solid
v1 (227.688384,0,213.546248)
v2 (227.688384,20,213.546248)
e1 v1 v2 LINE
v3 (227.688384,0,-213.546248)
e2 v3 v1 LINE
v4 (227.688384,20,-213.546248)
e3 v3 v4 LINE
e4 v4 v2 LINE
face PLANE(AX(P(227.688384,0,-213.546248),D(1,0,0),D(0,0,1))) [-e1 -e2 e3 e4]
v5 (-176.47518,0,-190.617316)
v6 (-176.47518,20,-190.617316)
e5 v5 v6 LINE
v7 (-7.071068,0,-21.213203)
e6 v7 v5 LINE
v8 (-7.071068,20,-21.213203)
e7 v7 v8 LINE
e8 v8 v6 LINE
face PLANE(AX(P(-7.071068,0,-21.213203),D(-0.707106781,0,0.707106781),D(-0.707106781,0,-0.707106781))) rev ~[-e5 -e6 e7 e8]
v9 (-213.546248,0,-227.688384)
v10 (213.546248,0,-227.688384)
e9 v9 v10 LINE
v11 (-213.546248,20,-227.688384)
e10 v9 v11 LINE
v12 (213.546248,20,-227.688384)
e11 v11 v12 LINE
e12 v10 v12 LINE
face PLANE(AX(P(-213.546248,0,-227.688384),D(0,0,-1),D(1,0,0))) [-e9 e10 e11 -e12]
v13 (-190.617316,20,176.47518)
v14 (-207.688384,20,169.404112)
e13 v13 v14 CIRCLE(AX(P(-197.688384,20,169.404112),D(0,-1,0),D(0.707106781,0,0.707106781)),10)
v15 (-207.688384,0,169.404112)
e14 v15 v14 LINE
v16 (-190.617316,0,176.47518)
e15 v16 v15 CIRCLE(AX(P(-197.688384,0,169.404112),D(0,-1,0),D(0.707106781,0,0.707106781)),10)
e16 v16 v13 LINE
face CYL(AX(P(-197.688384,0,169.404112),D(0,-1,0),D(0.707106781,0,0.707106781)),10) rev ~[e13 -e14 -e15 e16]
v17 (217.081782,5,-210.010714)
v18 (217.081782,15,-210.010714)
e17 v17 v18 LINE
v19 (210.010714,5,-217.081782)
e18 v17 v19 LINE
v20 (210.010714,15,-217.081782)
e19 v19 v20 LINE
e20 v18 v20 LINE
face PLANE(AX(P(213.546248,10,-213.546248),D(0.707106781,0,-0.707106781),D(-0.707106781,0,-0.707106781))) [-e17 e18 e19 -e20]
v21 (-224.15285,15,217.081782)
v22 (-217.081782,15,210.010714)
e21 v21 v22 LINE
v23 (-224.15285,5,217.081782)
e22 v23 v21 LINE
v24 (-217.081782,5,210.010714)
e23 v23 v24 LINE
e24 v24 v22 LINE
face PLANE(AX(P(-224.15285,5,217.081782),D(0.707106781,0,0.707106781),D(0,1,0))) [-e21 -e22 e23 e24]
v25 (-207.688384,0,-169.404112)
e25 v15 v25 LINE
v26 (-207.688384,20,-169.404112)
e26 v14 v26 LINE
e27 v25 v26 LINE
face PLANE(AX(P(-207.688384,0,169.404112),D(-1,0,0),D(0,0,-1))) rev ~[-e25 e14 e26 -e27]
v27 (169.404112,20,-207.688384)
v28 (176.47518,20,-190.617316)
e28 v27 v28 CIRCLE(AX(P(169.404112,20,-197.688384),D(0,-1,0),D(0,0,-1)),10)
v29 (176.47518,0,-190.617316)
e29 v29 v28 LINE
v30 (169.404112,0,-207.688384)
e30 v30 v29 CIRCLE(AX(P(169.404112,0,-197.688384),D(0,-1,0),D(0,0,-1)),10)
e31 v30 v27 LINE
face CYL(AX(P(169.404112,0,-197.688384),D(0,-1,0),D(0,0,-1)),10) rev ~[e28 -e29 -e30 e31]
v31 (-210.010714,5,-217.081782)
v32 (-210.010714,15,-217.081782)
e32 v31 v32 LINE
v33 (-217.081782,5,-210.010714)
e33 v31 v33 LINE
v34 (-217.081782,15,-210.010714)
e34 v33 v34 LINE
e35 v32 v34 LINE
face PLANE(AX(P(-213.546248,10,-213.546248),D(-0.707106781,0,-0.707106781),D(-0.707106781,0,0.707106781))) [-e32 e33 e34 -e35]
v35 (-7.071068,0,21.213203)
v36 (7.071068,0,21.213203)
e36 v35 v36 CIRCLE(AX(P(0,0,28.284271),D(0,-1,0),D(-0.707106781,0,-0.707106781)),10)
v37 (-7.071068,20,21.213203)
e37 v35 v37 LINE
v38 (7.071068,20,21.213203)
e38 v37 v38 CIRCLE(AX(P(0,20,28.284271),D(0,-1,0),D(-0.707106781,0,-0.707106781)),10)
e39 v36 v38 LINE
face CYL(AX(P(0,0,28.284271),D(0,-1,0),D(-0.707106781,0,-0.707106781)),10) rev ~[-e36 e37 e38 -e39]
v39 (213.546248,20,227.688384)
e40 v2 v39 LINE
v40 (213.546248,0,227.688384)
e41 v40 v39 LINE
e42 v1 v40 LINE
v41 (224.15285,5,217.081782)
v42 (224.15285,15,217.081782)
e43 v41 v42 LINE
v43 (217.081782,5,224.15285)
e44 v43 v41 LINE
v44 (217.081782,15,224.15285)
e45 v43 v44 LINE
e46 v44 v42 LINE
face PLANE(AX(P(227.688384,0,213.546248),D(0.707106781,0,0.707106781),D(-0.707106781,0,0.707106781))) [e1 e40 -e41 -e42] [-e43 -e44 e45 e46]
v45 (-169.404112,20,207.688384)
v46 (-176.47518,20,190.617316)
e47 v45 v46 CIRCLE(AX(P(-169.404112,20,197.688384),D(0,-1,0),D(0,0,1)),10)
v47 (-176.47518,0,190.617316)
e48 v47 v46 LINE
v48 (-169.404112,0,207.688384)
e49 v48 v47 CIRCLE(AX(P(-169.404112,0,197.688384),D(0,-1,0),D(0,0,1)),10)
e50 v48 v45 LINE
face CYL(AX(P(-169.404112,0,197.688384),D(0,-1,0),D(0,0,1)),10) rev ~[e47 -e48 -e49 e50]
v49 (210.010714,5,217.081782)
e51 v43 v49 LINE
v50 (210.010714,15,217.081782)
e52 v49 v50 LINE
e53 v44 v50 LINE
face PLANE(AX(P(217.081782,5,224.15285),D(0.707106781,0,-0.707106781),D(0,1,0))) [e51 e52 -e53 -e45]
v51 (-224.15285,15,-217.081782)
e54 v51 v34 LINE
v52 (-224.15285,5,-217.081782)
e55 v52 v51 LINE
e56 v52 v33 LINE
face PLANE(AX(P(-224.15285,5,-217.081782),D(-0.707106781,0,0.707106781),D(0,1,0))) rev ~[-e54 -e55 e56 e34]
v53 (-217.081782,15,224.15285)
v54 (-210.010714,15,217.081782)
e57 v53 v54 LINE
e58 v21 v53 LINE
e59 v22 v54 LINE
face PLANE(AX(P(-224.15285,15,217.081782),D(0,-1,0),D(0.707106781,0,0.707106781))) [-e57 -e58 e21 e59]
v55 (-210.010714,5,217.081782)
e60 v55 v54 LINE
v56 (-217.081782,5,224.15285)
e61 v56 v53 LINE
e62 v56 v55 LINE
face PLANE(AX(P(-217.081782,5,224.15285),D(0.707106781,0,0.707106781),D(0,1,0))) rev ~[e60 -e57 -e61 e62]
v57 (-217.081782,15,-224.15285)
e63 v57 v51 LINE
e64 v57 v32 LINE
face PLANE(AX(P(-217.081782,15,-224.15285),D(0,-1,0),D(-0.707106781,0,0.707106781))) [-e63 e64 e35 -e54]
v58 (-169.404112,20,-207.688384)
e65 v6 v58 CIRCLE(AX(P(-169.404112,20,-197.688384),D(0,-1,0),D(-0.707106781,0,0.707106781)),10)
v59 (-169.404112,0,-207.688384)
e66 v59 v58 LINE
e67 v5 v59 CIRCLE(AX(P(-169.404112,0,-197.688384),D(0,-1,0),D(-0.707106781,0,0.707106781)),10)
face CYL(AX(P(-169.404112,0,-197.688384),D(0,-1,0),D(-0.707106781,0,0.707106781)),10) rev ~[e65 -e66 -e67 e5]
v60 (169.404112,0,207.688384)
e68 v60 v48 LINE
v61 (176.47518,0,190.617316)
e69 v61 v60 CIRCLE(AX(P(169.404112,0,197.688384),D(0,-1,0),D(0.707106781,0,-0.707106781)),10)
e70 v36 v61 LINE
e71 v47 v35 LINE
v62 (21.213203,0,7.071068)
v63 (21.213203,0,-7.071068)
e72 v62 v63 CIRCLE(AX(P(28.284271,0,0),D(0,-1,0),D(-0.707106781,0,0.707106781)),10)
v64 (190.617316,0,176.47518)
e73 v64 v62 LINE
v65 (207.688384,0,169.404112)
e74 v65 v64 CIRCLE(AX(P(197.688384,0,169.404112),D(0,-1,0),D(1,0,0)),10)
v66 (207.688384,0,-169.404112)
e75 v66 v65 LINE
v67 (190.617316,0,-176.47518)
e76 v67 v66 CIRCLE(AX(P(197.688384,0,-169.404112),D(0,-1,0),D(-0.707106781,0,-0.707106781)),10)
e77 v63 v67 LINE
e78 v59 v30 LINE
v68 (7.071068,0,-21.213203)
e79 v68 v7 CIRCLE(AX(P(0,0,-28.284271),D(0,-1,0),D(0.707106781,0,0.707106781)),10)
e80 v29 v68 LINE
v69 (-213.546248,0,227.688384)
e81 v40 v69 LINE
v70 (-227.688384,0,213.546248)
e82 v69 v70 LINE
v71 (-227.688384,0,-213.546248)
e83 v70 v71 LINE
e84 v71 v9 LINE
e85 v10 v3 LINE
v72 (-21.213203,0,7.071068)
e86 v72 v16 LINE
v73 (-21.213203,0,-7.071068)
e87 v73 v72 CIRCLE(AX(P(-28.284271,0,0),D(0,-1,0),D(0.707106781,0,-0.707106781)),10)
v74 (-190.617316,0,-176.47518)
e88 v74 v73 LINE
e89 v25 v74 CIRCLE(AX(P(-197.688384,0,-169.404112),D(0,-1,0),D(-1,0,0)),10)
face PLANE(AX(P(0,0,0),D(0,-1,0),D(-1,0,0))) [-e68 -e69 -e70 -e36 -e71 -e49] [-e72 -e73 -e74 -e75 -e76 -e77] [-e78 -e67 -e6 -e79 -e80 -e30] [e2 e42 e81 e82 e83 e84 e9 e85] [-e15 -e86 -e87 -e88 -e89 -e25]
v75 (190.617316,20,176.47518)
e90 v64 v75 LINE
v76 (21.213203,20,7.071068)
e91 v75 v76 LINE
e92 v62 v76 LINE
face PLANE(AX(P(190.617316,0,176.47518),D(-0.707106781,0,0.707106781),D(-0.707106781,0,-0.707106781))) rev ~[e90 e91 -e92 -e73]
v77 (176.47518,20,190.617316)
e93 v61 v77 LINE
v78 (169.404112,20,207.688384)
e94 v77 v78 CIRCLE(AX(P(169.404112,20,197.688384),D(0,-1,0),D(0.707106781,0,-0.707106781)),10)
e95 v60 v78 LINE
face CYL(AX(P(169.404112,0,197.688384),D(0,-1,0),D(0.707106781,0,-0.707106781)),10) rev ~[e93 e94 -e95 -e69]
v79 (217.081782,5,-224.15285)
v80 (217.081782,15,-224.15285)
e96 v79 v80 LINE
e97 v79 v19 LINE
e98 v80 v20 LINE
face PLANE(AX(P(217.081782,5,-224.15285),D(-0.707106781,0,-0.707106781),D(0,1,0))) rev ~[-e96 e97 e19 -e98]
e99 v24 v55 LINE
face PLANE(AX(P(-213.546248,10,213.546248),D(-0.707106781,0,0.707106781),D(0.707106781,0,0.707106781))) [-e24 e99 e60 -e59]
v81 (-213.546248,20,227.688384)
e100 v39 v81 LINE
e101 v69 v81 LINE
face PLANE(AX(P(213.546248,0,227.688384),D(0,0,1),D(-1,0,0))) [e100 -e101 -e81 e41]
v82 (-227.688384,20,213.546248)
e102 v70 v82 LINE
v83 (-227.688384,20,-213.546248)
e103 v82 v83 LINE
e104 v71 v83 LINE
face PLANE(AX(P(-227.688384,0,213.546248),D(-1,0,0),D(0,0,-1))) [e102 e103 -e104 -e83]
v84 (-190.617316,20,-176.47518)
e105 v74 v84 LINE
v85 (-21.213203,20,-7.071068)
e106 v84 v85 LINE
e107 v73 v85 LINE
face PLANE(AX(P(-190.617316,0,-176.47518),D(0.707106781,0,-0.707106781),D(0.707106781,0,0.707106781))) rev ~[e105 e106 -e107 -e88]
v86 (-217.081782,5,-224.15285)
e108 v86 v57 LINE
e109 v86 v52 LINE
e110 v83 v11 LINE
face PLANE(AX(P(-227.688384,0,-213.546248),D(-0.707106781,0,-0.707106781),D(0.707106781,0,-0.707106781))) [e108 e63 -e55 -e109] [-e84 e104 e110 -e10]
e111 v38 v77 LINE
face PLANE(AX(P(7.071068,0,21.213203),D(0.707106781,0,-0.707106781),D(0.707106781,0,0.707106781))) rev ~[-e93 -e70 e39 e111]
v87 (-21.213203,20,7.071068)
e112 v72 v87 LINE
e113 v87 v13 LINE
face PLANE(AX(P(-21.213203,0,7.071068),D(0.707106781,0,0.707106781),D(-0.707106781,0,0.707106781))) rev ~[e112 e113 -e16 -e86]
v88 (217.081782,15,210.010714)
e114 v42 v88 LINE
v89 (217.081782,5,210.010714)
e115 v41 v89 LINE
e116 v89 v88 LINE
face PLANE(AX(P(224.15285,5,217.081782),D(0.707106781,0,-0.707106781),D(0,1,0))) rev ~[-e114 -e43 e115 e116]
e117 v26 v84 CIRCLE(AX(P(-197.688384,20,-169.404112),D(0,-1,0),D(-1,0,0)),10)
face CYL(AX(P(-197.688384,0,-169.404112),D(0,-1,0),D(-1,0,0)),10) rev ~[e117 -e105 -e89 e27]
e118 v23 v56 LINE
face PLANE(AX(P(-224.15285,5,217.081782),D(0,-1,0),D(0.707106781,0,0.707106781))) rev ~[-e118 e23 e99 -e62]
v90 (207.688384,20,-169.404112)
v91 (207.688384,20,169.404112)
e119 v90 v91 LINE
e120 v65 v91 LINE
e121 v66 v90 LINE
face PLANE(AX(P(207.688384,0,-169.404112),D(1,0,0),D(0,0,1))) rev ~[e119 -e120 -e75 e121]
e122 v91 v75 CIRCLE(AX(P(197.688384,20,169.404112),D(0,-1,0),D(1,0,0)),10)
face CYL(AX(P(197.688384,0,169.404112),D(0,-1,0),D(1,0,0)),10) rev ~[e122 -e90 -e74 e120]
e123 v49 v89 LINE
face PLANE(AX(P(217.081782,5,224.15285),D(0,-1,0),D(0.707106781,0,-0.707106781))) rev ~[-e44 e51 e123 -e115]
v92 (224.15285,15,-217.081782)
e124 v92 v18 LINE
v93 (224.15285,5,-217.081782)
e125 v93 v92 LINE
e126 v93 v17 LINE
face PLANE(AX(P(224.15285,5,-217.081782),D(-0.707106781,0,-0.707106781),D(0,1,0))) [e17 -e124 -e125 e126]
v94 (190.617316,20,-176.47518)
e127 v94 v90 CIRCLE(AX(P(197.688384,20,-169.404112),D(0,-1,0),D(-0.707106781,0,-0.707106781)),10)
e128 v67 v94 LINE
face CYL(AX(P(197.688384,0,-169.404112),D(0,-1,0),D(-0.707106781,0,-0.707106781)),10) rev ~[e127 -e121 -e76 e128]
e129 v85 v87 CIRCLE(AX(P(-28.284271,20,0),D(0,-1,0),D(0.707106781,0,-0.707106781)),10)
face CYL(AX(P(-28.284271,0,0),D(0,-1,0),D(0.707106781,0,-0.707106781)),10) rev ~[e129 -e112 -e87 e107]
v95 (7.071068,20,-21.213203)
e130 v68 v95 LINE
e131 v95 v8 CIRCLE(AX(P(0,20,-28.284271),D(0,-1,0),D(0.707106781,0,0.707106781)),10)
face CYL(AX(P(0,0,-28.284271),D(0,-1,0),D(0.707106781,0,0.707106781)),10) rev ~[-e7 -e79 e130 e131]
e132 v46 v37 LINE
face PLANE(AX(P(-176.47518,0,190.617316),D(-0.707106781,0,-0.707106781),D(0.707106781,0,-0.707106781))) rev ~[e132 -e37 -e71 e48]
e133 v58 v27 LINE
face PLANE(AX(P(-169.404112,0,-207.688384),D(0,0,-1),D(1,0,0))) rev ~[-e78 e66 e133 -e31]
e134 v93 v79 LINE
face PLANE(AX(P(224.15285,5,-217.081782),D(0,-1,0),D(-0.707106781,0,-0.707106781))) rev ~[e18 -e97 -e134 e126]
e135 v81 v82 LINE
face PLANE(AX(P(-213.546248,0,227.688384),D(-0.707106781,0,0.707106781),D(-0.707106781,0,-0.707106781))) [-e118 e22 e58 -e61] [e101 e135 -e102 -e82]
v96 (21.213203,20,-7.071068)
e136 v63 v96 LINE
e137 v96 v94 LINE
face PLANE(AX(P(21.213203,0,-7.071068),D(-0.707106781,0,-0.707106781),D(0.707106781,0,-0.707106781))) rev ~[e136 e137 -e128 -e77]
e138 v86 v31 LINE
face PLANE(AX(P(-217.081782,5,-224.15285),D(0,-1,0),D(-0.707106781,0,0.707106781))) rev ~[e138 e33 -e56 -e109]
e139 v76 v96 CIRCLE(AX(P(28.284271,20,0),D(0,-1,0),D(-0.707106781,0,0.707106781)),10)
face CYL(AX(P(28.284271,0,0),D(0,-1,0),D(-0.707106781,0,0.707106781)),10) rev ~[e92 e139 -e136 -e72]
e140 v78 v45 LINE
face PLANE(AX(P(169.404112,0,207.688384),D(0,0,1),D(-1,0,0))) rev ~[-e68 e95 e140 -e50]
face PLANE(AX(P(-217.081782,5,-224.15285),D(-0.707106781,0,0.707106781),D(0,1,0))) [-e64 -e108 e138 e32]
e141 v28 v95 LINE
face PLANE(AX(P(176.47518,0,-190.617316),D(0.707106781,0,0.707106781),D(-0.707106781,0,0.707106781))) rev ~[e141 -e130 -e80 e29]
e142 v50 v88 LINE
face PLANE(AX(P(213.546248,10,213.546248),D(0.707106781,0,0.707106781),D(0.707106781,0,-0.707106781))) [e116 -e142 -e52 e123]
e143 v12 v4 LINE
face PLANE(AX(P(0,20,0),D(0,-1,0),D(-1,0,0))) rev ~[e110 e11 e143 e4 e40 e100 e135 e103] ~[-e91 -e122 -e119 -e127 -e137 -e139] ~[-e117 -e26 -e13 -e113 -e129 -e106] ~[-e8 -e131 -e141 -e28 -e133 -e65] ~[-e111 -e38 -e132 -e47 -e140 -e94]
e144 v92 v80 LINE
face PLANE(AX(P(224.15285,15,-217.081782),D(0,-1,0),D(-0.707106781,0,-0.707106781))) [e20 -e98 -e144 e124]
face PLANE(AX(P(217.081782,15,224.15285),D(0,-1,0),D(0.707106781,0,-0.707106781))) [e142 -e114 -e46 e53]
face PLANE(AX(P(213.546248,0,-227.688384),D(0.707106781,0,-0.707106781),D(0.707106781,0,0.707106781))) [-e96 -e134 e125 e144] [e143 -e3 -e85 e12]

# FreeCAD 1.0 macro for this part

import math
import FreeCAD as App
import Part
import Sketcher

doc = App.newDocument("Part")
body = doc.addObject("PartDesign::Body", "Body")

sketch1 = doc.addObject("Sketcher::SketchObject", "Sketch")
body.addObject(sketch1)
sketch1.AttachmentSupport = (doc.XZ_Plane, [""])
sketch1.MapMode = "FlatFace"
sketch1.addGeometry(Part.LineSegment(App.Vector(228, -214, 0), App.Vector(214, -228, 0)), False)
sketch1.addGeometry(Part.LineSegment(App.Vector(214, -228, 0), App.Vector(-214, -228, 0)), False)
sketch1.addGeometry(Part.LineSegment(App.Vector(-214, -228, 0), App.Vector(-228, -214, 0)), False)
sketch1.addGeometry(Part.LineSegment(App.Vector(-228, -214, 0), App.Vector(-228, 214, 0)), False)
sketch1.addGeometry(Part.LineSegment(App.Vector(-228, 214, 0), App.Vector(-214, 228, 0)), False)
sketch1.addGeometry(Part.LineSegment(App.Vector(-214, 228, 0), App.Vector(214, 228, 0)), False)
sketch1.addGeometry(Part.LineSegment(App.Vector(214, 228, 0), App.Vector(228, 214, 0)), False)
sketch1.addGeometry(Part.LineSegment(App.Vector(228, 214, 0), App.Vector(228, -214, 0)), False)
sketch1.addGeometry(Part.LineSegment(App.Vector(7, 21, 0), App.Vector(176, 191, 0)), False)
sketch1.addGeometry(Part.ArcOfCircle(Part.Circle(App.Vector(169, 198, 0), App.Vector(0, 0, 1), 10), math.radians(-45), math.radians(90)), False)
sketch1.addGeometry(Part.LineSegment(App.Vector(169, 208, 0), App.Vector(-169, 208, 0)), False)
sketch1.addGeometry(Part.ArcOfCircle(Part.Circle(App.Vector(-169, 198, 0), App.Vector(0, 0, 1), 10), math.radians(90), math.radians(225)), False)
sketch1.addGeometry(Part.LineSegment(App.Vector(-176, 191, 0), App.Vector(-7, 21, 0)), False)
sketch1.addGeometry(Part.ArcOfCircle(Part.Circle(App.Vector(0, 28, 0), App.Vector(0, 0, 1), 10), math.radians(-135), math.radians(-45)), False)
sketch1.addGeometry(Part.LineSegment(App.Vector(-21, 7, 0), App.Vector(-191, 176, 0)), False)
sketch1.addGeometry(Part.ArcOfCircle(Part.Circle(App.Vector(-198, 169, 0), App.Vector(0, 0, 1), 10), math.radians(45), math.radians(180)), False)
sketch1.addGeometry(Part.LineSegment(App.Vector(-208, 169, 0), App.Vector(-208, -169, 0)), False)
sketch1.addGeometry(Part.ArcOfCircle(Part.Circle(App.Vector(-198, -169, 0), App.Vector(0, 0, 1), 10), math.radians(180), math.radians(315)), False)
sketch1.addGeometry(Part.LineSegment(App.Vector(-191, -176, 0), App.Vector(-21, -7, 0)), False)
sketch1.addGeometry(Part.ArcOfCircle(Part.Circle(App.Vector(-28, 0, 0), App.Vector(0, 0, 1), 10), math.radians(-45), math.radians(45)), False)
sketch1.addGeometry(Part.LineSegment(App.Vector(21, -7, 0), App.Vector(191, -176, 0)), False)
sketch1.addGeometry(Part.ArcOfCircle(Part.Circle(App.Vector(198, -169, 0), App.Vector(0, 0, 1), 10), math.radians(-135), math.radians(0)), False)
sketch1.addGeometry(Part.LineSegment(App.Vector(208, -169, 0), App.Vector(208, 169, 0)), False)
sketch1.addGeometry(Part.ArcOfCircle(Part.Circle(App.Vector(198, 169, 0), App.Vector(0, 0, 1), 10), math.radians(0), math.radians(135)), False)
sketch1.addGeometry(Part.LineSegment(App.Vector(191, 176, 0), App.Vector(21, 7, 0)), False)
sketch1.addGeometry(Part.ArcOfCircle(Part.Circle(App.Vector(28, 0, 0), App.Vector(0, 0, 1), 10), math.radians(135), math.radians(225)), False)
sketch1.addGeometry(Part.LineSegment(App.Vector(-7, -21, 0), App.Vector(-176, -191, 0)), False)
sketch1.addGeometry(Part.ArcOfCircle(Part.Circle(App.Vector(-169, -198, 0), App.Vector(0, 0, 1), 10), math.radians(135), math.radians(270)), False)
sketch1.addGeometry(Part.LineSegment(App.Vector(-169, -208, 0), App.Vector(169, -208, 0)), False)
sketch1.addGeometry(Part.ArcOfCircle(Part.Circle(App.Vector(169, -198, 0), App.Vector(0, 0, 1), 10), math.radians(-90), math.radians(45)), False)
sketch1.addGeometry(Part.LineSegment(App.Vector(176, -191, 0), App.Vector(7, -21, 0)), False)
sketch1.addGeometry(Part.ArcOfCircle(Part.Circle(App.Vector(0, -28, 0), App.Vector(0, 0, 1), 10), math.radians(45), math.radians(135)), False)
sketch1.addConstraint(Sketcher.Constraint("Coincident", 0, 2, 1, 1))
sketch1.addConstraint(Sketcher.Constraint("Coincident", 1, 2, 2, 1))
sketch1.addConstraint(Sketcher.Constraint("Coincident", 2, 2, 3, 1))
sketch1.addConstraint(Sketcher.Constraint("Coincident", 3, 2, 4, 1))
sketch1.addConstraint(Sketcher.Constraint("Coincident", 4, 2, 5, 1))
sketch1.addConstraint(Sketcher.Constraint("Coincident", 5, 2, 6, 1))
sketch1.addConstraint(Sketcher.Constraint("Coincident", 6, 2, 7, 1))
sketch1.addConstraint(Sketcher.Constraint("Coincident", 7, 2, 0, 1))
sketch1.addConstraint(Sketcher.Constraint("Tangent", 8, 2, 9, 1))
sketch1.addConstraint(Sketcher.Constraint("Tangent", 9, 2, 10, 1))
sketch1.addConstraint(Sketcher.Constraint("Tangent", 10, 2, 11, 1))
sketch1.addConstraint(Sketcher.Constraint("Tangent", 11, 2, 12, 1))
sketch1.addConstraint(Sketcher.Constraint("Tangent", 12, 2, 13, 1))
sketch1.addConstraint(Sketcher.Constraint("Tangent", 13, 2, 8, 1))
sketch1.addConstraint(Sketcher.Constraint("Tangent", 14, 2, 15, 1))
sketch1.addConstraint(Sketcher.Constraint("Tangent", 15, 2, 16, 1))
sketch1.addConstraint(Sketcher.Constraint("Tangent", 16, 2, 17, 1))
sketch1.addConstraint(Sketcher.Constraint("Tangent", 17, 2, 18, 1))
sketch1.addConstraint(Sketcher.Constraint("Tangent", 18, 2, 19, 1))
sketch1.addConstraint(Sketcher.Constraint("Tangent", 19, 2, 14, 1))
sketch1.addConstraint(Sketcher.Constraint("Tangent", 20, 2, 21, 1))
sketch1.addConstraint(Sketcher.Constraint("Tangent", 21, 2, 22, 1))
sketch1.addConstraint(Sketcher.Constraint("Tangent", 22, 2, 23, 1))
sketch1.addConstraint(Sketcher.Constraint("Tangent", 23, 2, 24, 1))
sketch1.addConstraint(Sketcher.Constraint("Tangent", 24, 2, 25, 1))
sketch1.addConstraint(Sketcher.Constraint("Tangent", 25, 2, 20, 1))
sketch1.addConstraint(Sketcher.Constraint("Tangent", 26, 2, 27, 1))
sketch1.addConstraint(Sketcher.Constraint("Tangent", 27, 2, 28, 1))
sketch1.addConstraint(Sketcher.Constraint("Tangent", 28, 2, 29, 1))
sketch1.addConstraint(Sketcher.Constraint("Tangent", 29, 2, 30, 1))
sketch1.addConstraint(Sketcher.Constraint("Tangent", 30, 2, 31, 1))
sketch1.addConstraint(Sketcher.Constraint("Tangent", 31, 2, 26, 1))
sketch1.addConstraint(Sketcher.Constraint("Horizontal", 1))
sketch1.addConstraint(Sketcher.Constraint("Vertical", 3))
sketch1.addConstraint(Sketcher.Constraint("Horizontal", 5))
sketch1.addConstraint(Sketcher.Constraint("Vertical", 7))
sketch1.addConstraint(Sketcher.Constraint("Horizontal", 10))
sketch1.addConstraint(Sketcher.Constraint("Vertical", 16))
sketch1.addConstraint(Sketcher.Constraint("Vertical", 22))
sketch1.addConstraint(Sketcher.Constraint("Horizontal", 28))
sketch1.addConstraint(Sketcher.Constraint("Equal", 9, 11))
sketch1.addConstraint(Sketcher.Constraint("Equal", 11, 13))
sketch1.addConstraint(Sketcher.Constraint("Equal", 13, 15))
sketch1.addConstraint(Sketcher.Constraint("Equal", 15, 17))
sketch1.addConstraint(Sketcher.Constraint("Equal", 17, 19))
sketch1.addConstraint(Sketcher.Constraint("Equal", 19, 21))
sketch1.addConstraint(Sketcher.Constraint("Equal", 21, 23))
sketch1.addConstraint(Sketcher.Constraint("Equal", 23, 25))
sketch1.addConstraint(Sketcher.Constraint("Equal", 25, 27))
sketch1.addConstraint(Sketcher.Constraint("Equal", 27, 29))
sketch1.addConstraint(Sketcher.Constraint("Equal", 29, 31))
sketch1.addConstraint(Sketcher.Constraint("Symmetric", 15, 3, 21, 3, -1, 1))
sketch1.addConstraint(Sketcher.Constraint("Symmetric", 19, 3, 25, 3, -1, 1))
sketch1.addConstraint(Sketcher.Constraint("Symmetric", 9, 3, 27, 3, -1, 1))
sketch1.addConstraint(Sketcher.Constraint("Symmetric", 13, 3, 31, 3, -1, 1))
sketch1.addConstraint(Sketcher.Constraint("Symmetric", 0, 2, 4, 2, -1, 1))
sketch1.addConstraint(Sketcher.Constraint("Symmetric", 2, 2, 6, 2, -1, 1))
sketch1.addConstraint(Sketcher.Constraint("Symmetric", 8, 2, 11, 2, -2))
sketch1.addConstraint(Sketcher.Constraint("Symmetric", 17, 2, 20, 2, -2))
sketch1.addConstraint(Sketcher.Constraint("Perpendicular", 0, 2))
sketch1.addConstraint(Sketcher.Constraint("Perpendicular", 2, 4))
sketch1.addConstraint(Sketcher.Constraint("Perpendicular", 4, 6))
sketch1.addConstraint(Sketcher.Constraint("Perpendicular", 6, 8))
sketch1.addConstraint(Sketcher.Constraint("Perpendicular", 8, 12))
sketch1.addConstraint(Sketcher.Constraint("Parallel", 12, 14))
sketch1.addConstraint(Sketcher.Constraint("Perpendicular", 20, 24))
sketch1.addConstraint(Sketcher.Constraint("Perpendicular", 26, 30))
sketch1.addConstraint(Sketcher.Constraint("Horizontal", 3, 2, 6, 2))
sketch1.addConstraint(Sketcher.Constraint("Equal", 5, 3))
sketch1.addConstraint(Sketcher.Constraint("Equal", 28, 16))
sketch1.addConstraint(Sketcher.Constraint("Radius", 9, 10.0))
sketch1.addConstraint(Sketcher.Constraint("Distance", 0, 20.0))
sketch1.addConstraint(Sketcher.Constraint("DistanceY", 0, 2, 29, 3, 30.0))
sketch1.addConstraint(Sketcher.Constraint("DistanceX", 2, 2, 17, 3, 30.0))
sketch1.addConstraint(Sketcher.Constraint("DistanceX", 1, 2, 1, 1, 427.092496))
sketch1.addConstraint(Sketcher.Constraint("DistanceX", 10, 2, 10, 1, 338.808225))
pad1 = doc.addObject("PartDesign::Pad", "Pad")
body.addObject(pad1)
pad1.Profile = sketch1
pad1.Length = 20
pad1.Reversed = True

sketch2 = doc.addObject("Sketcher::SketchObject", "Sketch001")
body.addObject(sketch2)
sketch2.Placement = App.Placement(App.Vector(220.617316, 0, -220.617316), App.Rotation(App.Vector(-0.707106781, 0, -0.707106781), App.Vector(0, 0.999999999, 0), App.Vector(0.707106781, 0, -0.707106781), "ZXY"))
sketch2.addGeometry(Part.LineSegment(App.Vector(-5, 15, 0), App.Vector(-5, 5, 0)), False)
sketch2.addGeometry(Part.LineSegment(App.Vector(-5, 5, 0), App.Vector(5, 5, 0)), False)
sketch2.addGeometry(Part.LineSegment(App.Vector(5, 5, 0), App.Vector(5, 15, 0)), False)
sketch2.addGeometry(Part.LineSegment(App.Vector(5, 15, 0), App.Vector(-5, 15, 0)), False)
sketch2.addConstraint(Sketcher.Constraint("Coincident", 0, 2, 1, 1))
sketch2.addConstraint(Sketcher.Constraint("Coincident", 1, 2, 2, 1))
sketch2.addConstraint(Sketcher.Constraint("Coincident", 2, 2, 3, 1))
sketch2.addConstraint(Sketcher.Constraint("Coincident", 3, 2, 0, 1))
sketch2.addConstraint(Sketcher.Constraint("Vertical", 0))
sketch2.addConstraint(Sketcher.Constraint("Horizontal", 1))
sketch2.addConstraint(Sketcher.Constraint("Vertical", 2))
sketch2.addConstraint(Sketcher.Constraint("Horizontal", 3))
sketch2.addConstraint(Sketcher.Constraint("Equal", 3, 0))
sketch2.addConstraint(Sketcher.Constraint("DistanceX", 1, 1, 1, 2, 10.0))
sketch2.addConstraint(Sketcher.Constraint("DistanceX", 0, 2, -1, 1, 5.0))
sketch2.addConstraint(Sketcher.Constraint("DistanceY", -1, 1, 0, 2, 5.0))
pocket1 = doc.addObject("PartDesign::Pocket", "Pocket")
body.addObject(pocket1)
pocket1.Profile = sketch2
pocket1.Length = 10
doc.recompute()

polarpattern = doc.addObject("PartDesign::PolarPattern", "PolarPattern")
body.addObject(polarpattern)
polarpattern.Originals = [pocket1]
polarpattern.Axis = (doc.Y_Axis, [""])
polarpattern.Angle = 360
polarpattern.Occurrences = 4
body.Tip = polarpattern

doc.recompute()
